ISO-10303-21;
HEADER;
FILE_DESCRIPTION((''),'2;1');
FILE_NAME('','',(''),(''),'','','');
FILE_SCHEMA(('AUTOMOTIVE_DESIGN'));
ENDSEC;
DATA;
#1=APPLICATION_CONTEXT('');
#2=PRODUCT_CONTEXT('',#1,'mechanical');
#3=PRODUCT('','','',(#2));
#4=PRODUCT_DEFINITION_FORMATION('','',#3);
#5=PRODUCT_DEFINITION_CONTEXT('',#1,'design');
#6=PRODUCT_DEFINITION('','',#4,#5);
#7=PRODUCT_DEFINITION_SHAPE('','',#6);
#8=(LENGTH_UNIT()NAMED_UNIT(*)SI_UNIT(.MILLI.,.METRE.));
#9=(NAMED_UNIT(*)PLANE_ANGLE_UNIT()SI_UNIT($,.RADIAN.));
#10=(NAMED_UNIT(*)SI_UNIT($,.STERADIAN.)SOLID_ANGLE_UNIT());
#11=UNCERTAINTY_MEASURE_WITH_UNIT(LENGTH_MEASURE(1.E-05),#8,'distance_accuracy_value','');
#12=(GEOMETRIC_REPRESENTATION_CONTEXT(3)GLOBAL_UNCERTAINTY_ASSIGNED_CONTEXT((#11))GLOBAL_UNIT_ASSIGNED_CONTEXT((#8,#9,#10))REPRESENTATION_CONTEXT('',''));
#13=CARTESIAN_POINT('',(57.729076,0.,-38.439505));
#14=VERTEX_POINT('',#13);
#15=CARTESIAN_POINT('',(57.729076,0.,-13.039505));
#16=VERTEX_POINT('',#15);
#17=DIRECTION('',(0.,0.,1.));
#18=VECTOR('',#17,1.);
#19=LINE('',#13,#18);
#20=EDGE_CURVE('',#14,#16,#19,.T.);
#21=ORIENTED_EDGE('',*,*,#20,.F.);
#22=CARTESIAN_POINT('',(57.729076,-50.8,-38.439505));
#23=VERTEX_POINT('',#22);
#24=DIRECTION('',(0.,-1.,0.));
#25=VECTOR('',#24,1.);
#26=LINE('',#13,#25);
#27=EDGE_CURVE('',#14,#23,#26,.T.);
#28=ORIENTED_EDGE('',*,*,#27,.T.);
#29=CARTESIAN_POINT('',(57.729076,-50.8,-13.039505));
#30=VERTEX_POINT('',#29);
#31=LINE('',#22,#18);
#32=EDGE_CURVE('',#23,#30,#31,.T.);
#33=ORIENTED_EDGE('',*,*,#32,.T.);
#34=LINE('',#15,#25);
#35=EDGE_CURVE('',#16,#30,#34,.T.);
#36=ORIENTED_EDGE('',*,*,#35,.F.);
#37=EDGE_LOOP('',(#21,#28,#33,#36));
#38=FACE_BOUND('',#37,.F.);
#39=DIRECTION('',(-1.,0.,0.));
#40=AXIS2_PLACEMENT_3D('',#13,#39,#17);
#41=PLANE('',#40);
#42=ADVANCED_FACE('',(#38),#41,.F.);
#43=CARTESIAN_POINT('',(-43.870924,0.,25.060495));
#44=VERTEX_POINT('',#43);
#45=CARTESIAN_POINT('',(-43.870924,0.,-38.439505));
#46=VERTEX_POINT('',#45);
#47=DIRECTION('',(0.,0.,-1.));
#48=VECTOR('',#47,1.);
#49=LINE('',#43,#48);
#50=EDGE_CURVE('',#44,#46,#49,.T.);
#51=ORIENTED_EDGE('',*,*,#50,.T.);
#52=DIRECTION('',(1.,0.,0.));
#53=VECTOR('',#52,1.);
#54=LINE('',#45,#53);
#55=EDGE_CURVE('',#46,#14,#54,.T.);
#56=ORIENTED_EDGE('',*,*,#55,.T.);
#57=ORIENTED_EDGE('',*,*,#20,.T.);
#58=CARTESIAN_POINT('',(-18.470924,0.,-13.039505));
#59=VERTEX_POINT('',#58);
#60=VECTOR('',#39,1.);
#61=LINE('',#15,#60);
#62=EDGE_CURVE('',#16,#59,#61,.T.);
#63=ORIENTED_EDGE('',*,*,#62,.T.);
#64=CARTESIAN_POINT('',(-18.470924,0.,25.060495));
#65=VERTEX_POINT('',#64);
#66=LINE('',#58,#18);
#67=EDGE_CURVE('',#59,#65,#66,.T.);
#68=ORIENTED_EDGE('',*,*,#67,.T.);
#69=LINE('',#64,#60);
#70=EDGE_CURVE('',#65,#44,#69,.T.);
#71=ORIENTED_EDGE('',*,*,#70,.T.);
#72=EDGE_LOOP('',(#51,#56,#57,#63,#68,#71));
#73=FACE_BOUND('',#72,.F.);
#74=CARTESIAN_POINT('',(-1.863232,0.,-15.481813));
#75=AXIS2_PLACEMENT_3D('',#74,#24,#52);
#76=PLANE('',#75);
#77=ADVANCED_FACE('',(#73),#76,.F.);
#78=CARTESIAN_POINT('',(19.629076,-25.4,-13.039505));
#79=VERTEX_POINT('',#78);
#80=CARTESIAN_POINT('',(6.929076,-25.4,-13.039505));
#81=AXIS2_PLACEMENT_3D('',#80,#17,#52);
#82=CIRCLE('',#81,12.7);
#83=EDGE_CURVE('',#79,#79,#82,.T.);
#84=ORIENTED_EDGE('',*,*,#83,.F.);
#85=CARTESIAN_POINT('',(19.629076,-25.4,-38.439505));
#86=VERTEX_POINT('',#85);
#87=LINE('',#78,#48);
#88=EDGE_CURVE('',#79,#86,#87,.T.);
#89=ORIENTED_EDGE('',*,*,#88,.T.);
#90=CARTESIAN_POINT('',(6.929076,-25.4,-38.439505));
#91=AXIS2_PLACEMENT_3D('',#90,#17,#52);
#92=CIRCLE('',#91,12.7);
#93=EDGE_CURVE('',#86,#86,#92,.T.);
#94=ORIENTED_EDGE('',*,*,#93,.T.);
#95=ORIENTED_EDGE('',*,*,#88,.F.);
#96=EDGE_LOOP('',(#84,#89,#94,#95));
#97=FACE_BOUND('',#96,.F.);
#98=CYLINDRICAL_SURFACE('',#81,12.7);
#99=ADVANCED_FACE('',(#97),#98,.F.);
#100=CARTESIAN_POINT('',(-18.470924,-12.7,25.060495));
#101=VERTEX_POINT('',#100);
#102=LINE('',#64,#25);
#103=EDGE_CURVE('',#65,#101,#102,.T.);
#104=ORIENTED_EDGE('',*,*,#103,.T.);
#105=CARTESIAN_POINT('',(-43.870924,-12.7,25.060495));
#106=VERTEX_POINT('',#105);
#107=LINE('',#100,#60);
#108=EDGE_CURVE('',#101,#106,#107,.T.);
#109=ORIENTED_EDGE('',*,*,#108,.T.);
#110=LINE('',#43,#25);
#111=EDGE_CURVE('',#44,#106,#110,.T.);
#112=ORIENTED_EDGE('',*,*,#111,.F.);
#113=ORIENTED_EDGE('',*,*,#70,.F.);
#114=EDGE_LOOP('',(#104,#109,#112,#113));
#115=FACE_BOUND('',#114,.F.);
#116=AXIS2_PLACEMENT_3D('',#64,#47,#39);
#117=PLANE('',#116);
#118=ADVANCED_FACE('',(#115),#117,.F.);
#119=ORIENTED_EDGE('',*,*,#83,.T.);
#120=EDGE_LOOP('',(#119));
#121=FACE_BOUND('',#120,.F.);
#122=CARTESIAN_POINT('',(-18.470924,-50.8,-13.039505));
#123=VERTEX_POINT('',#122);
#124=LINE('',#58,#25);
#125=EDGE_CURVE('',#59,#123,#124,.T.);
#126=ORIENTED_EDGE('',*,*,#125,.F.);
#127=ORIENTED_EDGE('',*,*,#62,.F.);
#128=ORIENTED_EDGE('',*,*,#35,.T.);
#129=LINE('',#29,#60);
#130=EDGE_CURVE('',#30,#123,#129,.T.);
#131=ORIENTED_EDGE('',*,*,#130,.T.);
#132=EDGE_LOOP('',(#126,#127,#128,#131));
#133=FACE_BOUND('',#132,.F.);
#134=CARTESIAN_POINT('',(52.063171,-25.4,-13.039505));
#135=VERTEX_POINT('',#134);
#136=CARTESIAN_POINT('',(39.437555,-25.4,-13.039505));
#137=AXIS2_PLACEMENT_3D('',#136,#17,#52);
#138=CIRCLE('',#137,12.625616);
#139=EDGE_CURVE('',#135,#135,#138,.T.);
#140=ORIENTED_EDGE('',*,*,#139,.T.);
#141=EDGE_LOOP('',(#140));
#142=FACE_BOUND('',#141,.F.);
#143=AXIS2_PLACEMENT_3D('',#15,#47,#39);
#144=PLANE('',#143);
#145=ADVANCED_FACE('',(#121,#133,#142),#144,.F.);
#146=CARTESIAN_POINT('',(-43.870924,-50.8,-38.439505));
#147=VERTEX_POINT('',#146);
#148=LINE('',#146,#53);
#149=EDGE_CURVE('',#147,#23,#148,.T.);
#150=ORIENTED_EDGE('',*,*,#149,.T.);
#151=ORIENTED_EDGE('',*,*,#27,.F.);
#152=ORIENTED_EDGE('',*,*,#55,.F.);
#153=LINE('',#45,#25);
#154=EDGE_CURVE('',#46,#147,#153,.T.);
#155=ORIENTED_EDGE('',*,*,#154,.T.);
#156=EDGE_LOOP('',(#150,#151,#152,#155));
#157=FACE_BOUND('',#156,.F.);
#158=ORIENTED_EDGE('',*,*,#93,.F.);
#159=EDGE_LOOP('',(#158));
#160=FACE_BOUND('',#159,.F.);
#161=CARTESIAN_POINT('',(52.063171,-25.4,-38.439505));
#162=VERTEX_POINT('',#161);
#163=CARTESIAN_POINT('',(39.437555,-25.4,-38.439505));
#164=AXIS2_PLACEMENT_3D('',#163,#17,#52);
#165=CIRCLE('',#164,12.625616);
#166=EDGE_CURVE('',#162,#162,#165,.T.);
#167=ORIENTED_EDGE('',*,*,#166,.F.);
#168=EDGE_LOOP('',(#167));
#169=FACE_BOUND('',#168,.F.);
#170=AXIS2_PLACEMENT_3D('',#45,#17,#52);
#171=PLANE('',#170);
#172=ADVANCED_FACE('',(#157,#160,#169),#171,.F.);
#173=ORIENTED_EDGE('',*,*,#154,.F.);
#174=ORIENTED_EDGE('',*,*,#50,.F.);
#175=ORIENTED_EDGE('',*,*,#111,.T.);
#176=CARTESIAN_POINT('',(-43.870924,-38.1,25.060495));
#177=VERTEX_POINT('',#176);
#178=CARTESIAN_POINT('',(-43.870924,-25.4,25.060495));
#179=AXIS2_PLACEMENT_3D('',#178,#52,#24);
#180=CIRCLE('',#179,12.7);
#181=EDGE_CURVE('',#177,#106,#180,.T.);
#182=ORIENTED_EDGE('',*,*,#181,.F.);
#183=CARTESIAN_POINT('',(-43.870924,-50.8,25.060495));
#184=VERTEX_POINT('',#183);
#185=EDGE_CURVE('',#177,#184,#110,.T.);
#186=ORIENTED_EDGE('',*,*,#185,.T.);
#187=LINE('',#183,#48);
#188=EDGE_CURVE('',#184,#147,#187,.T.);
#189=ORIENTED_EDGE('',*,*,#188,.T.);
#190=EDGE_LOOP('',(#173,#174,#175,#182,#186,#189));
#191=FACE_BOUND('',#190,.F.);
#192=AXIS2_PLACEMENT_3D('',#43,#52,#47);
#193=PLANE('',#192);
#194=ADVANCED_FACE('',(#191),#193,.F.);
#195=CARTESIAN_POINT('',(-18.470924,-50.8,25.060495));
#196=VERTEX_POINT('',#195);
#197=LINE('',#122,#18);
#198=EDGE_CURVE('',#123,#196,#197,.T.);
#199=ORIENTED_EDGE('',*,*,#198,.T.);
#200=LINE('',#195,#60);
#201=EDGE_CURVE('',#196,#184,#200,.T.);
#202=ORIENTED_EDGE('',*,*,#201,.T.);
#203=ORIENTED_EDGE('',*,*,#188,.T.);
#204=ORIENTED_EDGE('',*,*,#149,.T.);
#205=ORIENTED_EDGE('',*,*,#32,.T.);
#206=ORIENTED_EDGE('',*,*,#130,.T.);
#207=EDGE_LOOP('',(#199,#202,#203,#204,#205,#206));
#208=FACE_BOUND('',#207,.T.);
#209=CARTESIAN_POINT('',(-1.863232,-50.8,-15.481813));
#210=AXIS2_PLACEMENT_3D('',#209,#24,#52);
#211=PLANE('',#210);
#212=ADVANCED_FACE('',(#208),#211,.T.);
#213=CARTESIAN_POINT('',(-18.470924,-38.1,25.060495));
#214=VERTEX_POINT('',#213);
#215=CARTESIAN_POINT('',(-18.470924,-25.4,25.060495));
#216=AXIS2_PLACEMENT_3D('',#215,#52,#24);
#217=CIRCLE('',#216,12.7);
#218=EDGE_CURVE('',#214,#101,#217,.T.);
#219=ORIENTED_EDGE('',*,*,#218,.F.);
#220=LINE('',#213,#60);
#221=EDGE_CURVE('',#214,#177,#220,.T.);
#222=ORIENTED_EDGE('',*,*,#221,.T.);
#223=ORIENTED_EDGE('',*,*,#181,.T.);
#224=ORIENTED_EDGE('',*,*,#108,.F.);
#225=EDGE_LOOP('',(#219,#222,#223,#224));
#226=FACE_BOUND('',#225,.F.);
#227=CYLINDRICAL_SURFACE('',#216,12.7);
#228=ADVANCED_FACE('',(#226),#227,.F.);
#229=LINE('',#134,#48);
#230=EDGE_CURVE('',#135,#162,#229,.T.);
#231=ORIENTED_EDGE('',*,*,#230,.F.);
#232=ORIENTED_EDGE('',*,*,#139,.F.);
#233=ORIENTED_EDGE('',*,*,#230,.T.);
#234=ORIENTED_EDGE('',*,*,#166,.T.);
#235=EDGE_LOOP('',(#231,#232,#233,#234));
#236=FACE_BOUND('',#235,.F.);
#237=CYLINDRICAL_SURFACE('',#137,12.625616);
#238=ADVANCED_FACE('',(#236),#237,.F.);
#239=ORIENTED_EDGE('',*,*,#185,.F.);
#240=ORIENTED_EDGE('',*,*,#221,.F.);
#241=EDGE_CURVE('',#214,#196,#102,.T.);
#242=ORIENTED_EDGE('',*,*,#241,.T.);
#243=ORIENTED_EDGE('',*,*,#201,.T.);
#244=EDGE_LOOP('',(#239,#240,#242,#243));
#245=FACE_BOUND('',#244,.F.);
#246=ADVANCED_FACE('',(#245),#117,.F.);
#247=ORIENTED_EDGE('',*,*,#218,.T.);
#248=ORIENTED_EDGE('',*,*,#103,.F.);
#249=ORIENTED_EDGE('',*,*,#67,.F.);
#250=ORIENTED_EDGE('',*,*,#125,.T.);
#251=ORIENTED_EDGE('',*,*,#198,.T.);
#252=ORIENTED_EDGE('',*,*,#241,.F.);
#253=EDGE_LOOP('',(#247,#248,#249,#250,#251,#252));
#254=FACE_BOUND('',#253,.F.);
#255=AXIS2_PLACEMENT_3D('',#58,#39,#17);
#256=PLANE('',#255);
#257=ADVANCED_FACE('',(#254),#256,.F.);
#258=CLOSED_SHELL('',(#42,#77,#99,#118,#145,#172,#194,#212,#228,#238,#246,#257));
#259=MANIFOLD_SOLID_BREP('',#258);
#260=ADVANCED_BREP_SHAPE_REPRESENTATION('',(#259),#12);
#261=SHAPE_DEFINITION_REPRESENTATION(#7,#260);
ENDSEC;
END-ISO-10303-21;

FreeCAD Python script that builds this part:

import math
import FreeCAD as App
import Part
import Sketcher

V = App.Vector
Q = App.Units.Quantity


def add_polygon(sketch, points):
    """Adds a closed chain of lines whose ends are joined by coincident constraints."""
    first, n = sketch.GeometryCount, len(points)
    for a, b in zip(points, points[1:] + points[:1]):
        sketch.addGeometry(Part.LineSegment(App.Vector(*a, 0), App.Vector(*b, 0)), False)
    for i in range(n):
        sketch.addConstraint(Sketcher.Constraint("Coincident", first + i, 2, first + (i + 1) % n, 1))

doc = App.newDocument("Part")
body = doc.addObject("PartDesign::Body", "Body")

# Sketch on XZ plane
sketch1 = body.newObject("Sketcher::SketchObject", "Sketch")
sketch1.AttachmentSupport = (doc.getObject("XZ_Plane"), [""])
sketch1.MapMode = "FlatFace"
add_polygon(sketch1, [(-18, 25), (-44, 25), (-44, -38), (58, -38), (58, -13), (-18, -13)])  # lines 0-5
sketch1.addConstraint(Sketcher.Constraint("Horizontal", 0))
sketch1.addConstraint(Sketcher.Constraint("Vertical", 1))
sketch1.addConstraint(Sketcher.Constraint("Horizontal", 2))
sketch1.addConstraint(Sketcher.Constraint("Vertical", 3))
sketch1.addConstraint(Sketcher.Constraint("Horizontal", 4))
sketch1.addConstraint(Sketcher.Constraint("Vertical", 5))
sketch1.addConstraint(Sketcher.Constraint("Equal", 0, 3))
sketch1.addConstraint(Sketcher.Constraint("DistanceX", 0, 2, 0, 1, Q("1 in")))
sketch1.addConstraint(Sketcher.Constraint("DistanceX", 2, 1, 2, 2, Q("4 in")))
sketch1.addConstraint(Sketcher.Constraint("DistanceY", 1, 2, 1, 1, Q("2.5 in")))
sketch1.addConstraint(Sketcher.Constraint("DistanceX", 0, 2, -1, 1, Q("43.870924 mm")))
sketch1.addConstraint(Sketcher.Constraint("DistanceY", -1, 1, 0, 2, Q("25.060495 mm")))
pad1 = body.newObject("PartDesign::Pad", "Pad")
pad1.Profile = sketch1
pad1.Length = Q("2 in")

# Sketch on YZ plane
sketch2 = body.newObject("Sketcher::SketchObject", "Sketch001")
sketch2.AttachmentSupport = (doc.getObject("YZ_Plane"), [""])
sketch2.MapMode = "FlatFace"
sketch2.AttachmentOffset = App.Placement(V(0, 0, -18.470924), App.Rotation())
sketch2.addGeometry(Part.LineSegment(V(-13, 25, 0), V(-38, 25, 0)), False)
sketch2.addGeometry(Part.ArcOfCircle(Part.Circle(V(-25, 25, 0), V(0, 0, 1), 13), math.radians(180), math.radians(360)), False)
sketch2.addConstraint(Sketcher.Constraint("Coincident", 0, 1, 1, 2))
sketch2.addConstraint(Sketcher.Constraint("Coincident", 1, 1, 0, 2))
sketch2.addConstraint(Sketcher.Constraint("Horizontal", 0))
sketch2.addConstraint(Sketcher.Constraint("Horizontal", 1, 3, 0, 1))
sketch2.addConstraint(Sketcher.Constraint("Radius", 1, Q("0.5 in")))
sketch2.addConstraint(Sketcher.Constraint("DistanceX", 1, 3, -1, 1, Q("1 in")))
sketch2.addConstraint(Sketcher.Constraint("DistanceY", -1, 1, 1, 3, Q("25.060495 mm")))
pocket1 = body.newObject("PartDesign::Pocket", "Pocket")
pocket1.Profile = sketch2
pocket1.Length = Q("3.16 in")

# Sketch on XY plane
sketch3 = body.newObject("Sketcher::SketchObject", "Sketch002")
sketch3.AttachmentSupport = (doc.getObject("XY_Plane"), [""])
sketch3.MapMode = "FlatFace"
sketch3.AttachmentOffset = App.Placement(V(0, 0, -13.039505), App.Rotation())
sketch3.addGeometry(Part.Circle(V(7, -25, 0), V(0, 0, 1), 13), False)
sketch3.addGeometry(Part.Circle(V(39, -25, 0), V(0, 0, 1), 13), False)
sketch3.addConstraint(Sketcher.Constraint("Horizontal", 0, 3, 1, 3))
sketch3.addConstraint(Sketcher.Constraint("Diameter", 0, Q("1 in")))
sketch3.addConstraint(Sketcher.Constraint("DistanceY", 0, 3, -1, 1, Q("1 in")))
sketch3.addConstraint(Sketcher.Constraint("Diameter", 1, Q("25.251232 mm")))
sketch3.addConstraint(Sketcher.Constraint("DistanceX", 0, 3, 1, 3, Q("32.508479 mm")))
sketch3.addConstraint(Sketcher.Constraint("DistanceX", -1, 1, 0, 3, Q("6.929076 mm")))
pocket2 = body.newObject("PartDesign::Pocket", "Pocket001")
pocket2.Profile = sketch3
pocket2.Length = Q("2 in")

doc.recompute()
